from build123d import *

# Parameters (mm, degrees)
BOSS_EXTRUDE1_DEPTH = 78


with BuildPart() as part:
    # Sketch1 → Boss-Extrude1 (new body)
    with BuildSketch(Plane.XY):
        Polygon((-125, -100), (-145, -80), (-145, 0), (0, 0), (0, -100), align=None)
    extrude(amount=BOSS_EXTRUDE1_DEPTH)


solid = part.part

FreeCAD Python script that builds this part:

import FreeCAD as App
import Part
import Sketcher
from FreeCAD import Vector
Q = App.Units.Quantity

doc = App.newDocument("Part")
body = doc.addObject("PartDesign::Body", "Body")

# Sketch on XY plane
sketch1 = doc.addObject("Sketcher::SketchObject", "Sketch")
body.addObject(sketch1)
sketch1.AttachmentSupport = (doc.XY_Plane, [""])
sketch1.MapMode = "FlatFace"
sketch1.addGeometry(Part.LineSegment(Vector(-145, -80, 0), Vector(-125, -100, 0)), False)
sketch1.addGeometry(Part.LineSegment(Vector(-125, -100, 0), Vector(0, -100, 0)), False)
sketch1.addGeometry(Part.LineSegment(Vector(0, -100, 0), Vector(0, 0, 0)), False)
sketch1.addGeometry(Part.LineSegment(Vector(0, 0, 0), Vector(-145, 0, 0)), False)
sketch1.addGeometry(Part.LineSegment(Vector(-145, 0, 0), Vector(-145, -80, 0)), False)
sketch1.addConstraint(Sketcher.Constraint("Coincident", 0, 2, 1, 1))
sketch1.addConstraint(Sketcher.Constraint("Coincident", 1, 2, 2, 1))
sketch1.addConstraint(Sketcher.Constraint("Coincident", 2, 2, 3, 1))
sketch1.addConstraint(Sketcher.Constraint("Coincident", 3, 2, 4, 1))
sketch1.addConstraint(Sketcher.Constraint("Coincident", 4, 2, 0, 1))
sketch1.addConstraint(Sketcher.Constraint("Horizontal", 1))
sketch1.addConstraint(Sketcher.Constraint("Vertical", 2))
sketch1.addConstraint(Sketcher.Constraint("Horizontal", 3))
sketch1.addConstraint(Sketcher.Constraint("Vertical", 4))
sketch1.addConstraint(Sketcher.Constraint("Coincident", 2, 2, -1, 1))
sketch1.addConstraint(Sketcher.Constraint("DistanceX", 1, 1, 1, 2, Q("125 mm")))
sketch1.addConstraint(Sketcher.Constraint("DistanceX", 3, 2, 3, 1, Q("145 mm")))
sketch1.addConstraint(Sketcher.Constraint("DistanceY", 2, 1, 2, 2, Q("100 mm")))
sketch1.addConstraint(Sketcher.Constraint("DistanceY", 4, 2, 4, 1, Q("80 mm")))
pad1 = doc.addObject("PartDesign::Pad", "Pad")
body.addObject(pad1)
pad1.Profile = sketch1
pad1.Length = 78

doc.recompute()
